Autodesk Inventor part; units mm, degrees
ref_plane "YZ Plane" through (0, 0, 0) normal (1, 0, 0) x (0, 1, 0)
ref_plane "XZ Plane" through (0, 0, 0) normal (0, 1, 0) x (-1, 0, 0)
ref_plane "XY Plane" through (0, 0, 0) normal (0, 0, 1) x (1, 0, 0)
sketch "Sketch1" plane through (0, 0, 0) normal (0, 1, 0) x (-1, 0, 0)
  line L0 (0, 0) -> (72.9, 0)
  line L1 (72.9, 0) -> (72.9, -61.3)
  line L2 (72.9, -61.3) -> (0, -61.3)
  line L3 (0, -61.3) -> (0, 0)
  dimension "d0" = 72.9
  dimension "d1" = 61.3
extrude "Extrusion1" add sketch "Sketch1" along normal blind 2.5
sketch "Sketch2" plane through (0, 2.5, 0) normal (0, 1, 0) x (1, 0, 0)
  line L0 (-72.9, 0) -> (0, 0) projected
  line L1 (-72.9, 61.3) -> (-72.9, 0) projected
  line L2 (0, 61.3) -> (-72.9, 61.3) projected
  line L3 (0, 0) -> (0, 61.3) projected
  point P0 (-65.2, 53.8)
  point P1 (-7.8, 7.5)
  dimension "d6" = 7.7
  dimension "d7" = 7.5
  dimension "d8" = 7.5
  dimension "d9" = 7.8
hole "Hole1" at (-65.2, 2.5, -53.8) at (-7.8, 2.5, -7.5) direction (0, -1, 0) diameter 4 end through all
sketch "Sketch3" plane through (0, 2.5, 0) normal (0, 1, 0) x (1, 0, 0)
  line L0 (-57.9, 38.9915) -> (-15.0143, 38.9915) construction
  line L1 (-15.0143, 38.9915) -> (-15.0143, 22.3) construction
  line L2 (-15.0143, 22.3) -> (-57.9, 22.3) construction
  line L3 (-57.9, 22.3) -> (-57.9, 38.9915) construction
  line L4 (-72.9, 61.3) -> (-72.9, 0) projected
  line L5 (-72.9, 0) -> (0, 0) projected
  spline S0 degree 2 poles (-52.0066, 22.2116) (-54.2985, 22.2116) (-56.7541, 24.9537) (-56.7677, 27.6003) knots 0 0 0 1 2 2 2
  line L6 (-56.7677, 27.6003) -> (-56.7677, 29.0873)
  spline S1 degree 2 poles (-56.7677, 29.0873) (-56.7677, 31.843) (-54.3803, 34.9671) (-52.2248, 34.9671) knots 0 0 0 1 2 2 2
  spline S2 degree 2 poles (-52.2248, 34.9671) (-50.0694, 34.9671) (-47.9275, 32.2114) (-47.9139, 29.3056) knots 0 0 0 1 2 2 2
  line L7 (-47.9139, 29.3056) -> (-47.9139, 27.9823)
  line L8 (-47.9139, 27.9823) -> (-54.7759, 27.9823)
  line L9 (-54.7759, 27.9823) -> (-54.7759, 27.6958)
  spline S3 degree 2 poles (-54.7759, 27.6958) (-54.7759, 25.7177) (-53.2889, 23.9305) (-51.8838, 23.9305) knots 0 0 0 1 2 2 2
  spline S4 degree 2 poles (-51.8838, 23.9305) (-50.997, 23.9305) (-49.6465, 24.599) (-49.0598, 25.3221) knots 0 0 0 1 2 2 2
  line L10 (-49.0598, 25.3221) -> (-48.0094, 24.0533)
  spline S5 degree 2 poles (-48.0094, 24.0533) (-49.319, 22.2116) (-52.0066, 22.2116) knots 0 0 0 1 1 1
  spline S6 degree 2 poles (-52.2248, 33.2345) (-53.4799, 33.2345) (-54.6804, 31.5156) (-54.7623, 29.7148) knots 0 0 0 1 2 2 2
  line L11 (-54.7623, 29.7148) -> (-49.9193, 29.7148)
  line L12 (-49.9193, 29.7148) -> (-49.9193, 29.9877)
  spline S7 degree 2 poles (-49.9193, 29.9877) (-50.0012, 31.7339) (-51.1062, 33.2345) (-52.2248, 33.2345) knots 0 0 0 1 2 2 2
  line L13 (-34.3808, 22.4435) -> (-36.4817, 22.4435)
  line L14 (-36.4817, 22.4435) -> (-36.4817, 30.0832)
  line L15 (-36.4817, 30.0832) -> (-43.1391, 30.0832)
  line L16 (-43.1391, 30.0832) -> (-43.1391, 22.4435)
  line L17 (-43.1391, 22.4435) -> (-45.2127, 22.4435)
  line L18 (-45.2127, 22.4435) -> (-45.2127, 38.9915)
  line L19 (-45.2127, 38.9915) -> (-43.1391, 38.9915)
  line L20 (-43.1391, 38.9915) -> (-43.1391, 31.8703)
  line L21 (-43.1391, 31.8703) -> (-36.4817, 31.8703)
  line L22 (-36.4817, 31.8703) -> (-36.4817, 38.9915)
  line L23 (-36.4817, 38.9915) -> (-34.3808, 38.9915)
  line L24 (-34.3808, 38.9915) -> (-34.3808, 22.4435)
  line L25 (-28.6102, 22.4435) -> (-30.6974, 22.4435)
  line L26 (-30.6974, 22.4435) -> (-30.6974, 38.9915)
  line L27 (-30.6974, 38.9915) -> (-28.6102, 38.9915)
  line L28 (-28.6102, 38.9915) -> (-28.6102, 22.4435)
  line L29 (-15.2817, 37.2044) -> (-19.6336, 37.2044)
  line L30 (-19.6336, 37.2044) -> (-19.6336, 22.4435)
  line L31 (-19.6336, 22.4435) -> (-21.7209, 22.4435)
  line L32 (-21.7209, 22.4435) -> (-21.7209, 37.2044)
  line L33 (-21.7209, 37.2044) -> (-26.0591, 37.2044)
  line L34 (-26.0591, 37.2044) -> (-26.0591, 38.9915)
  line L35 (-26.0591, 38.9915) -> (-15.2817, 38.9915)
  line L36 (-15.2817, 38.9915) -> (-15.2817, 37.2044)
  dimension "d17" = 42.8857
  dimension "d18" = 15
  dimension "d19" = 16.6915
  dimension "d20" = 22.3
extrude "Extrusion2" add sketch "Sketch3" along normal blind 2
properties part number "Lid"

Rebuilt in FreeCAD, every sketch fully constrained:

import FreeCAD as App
import Part
import Sketcher


def add_polygon(sketch, points):
    """Adds a closed chain of lines whose ends are joined by coincident constraints."""
    first, n = sketch.GeometryCount, len(points)
    for a, b in zip(points, points[1:] + points[:1]):
        sketch.addGeometry(Part.LineSegment(App.Vector(*a, 0), App.Vector(*b, 0)), False)
    for i in range(n):
        sketch.addConstraint(Sketcher.Constraint("Coincident", first + i, 2, first + (i + 1) % n, 1))

doc = App.newDocument("Part")
params = doc.addObject("Spreadsheet::Sheet", "Params")
for row, (alias, value) in enumerate([
    ("sketch1_width", "72.9 mm"),
    ("sketch1_height", "61.3 mm"),
    ("pad1_length", "2.5 mm"),
    ("sketch2_diameter", "4 mm"),
    ("hole_diameter", "4 mm"),
    ("pad2_length", "2 mm"),
], start=1):
    params.set(f"A{row}", alias)
    params.set(f"B{row}", "=" + value)
    params.setAlias(f"B{row}", alias)

body = doc.addObject("PartDesign::Body", "Body")

# Sketch on XZ plane
sketch1 = body.newObject("Sketcher::SketchObject", "Sketch")
sketch1.AttachmentSupport = (doc.getObject("XZ_Plane"), [""])
sketch1.MapMode = "FlatFace"
add_polygon(sketch1, [(-73, 0), (0, 0), (0, -61), (-73, -61)])  # lines 0-3
sketch1.addConstraint([
    Sketcher.Constraint("Horizontal", 0),
    Sketcher.Constraint("Vertical", 1),
    Sketcher.Constraint("Horizontal", 2),
    Sketcher.Constraint("Vertical", 3),
    Sketcher.Constraint("Coincident", 0, 2, -1, 1),
    Sketcher.Constraint("DistanceX", 0, 1, 0, 2, 72.9),
    Sketcher.Constraint("DistanceY", 1, 2, 1, 1, 61.3),
])
sketch1.setExpression("Constraints[9]", "Params.sketch1_width")
sketch1.setExpression("Constraints[10]", "Params.sketch1_height")
pad1 = body.newObject("PartDesign::Pad", "Pad")
pad1.Profile = sketch1
pad1.setExpression("Length", "Params.pad1_length")
pad1.Reversed = True

# Sketch on XZ plane
sketch2 = body.newObject("Sketcher::SketchObject", "Sketch001")
sketch2.AttachmentSupport = (doc.getObject("XZ_Plane"), [""])
sketch2.MapMode = "FlatFace"
sketch2.AttachmentOffset = App.Placement(App.Vector(0, 0, -2.5), App.Rotation())
sketch2.addGeometry([
    Part.Circle(App.Vector(-65.2, -53.8, 0), App.Vector(0, 0, 1), 2),
    Part.Circle(App.Vector(-7.8, -7.5, 0), App.Vector(0, 0, 1), 2),
], False)
sketch2.addConstraint([
    Sketcher.Constraint("Equal", 0, 1),
    Sketcher.Constraint("Diameter", 0, 4.0),
    Sketcher.Constraint("DistanceX", 0, 3, -1, 1, 65.2),
    Sketcher.Constraint("DistanceY", 0, 3, -1, 1, 53.8),
    Sketcher.Constraint("DistanceX", 1, 3, -1, 1, 7.8),
    Sketcher.Constraint("DistanceY", 1, 3, -1, 1, 7.5),
])
sketch2.setExpression("Constraints[1]", "Params.sketch2_diameter")
doc.recompute()
hole = body.newObject("PartDesign::Hole", "Hole")
hole.Profile = sketch2
hole.ThreadType = "None"
hole.setExpression("Diameter", "Params.hole_diameter")
hole.DepthType = "ThroughAll"
hole.Reversed = True

# Sketch on XZ plane
sketch3 = body.newObject("Sketcher::SketchObject", "Sketch002")
sketch3.AttachmentSupport = (doc.getObject("XZ_Plane"), [""])
sketch3.MapMode = "FlatFace"
sketch3.AttachmentOffset = App.Placement(App.Vector(0, 0, -2.5), App.Rotation())
sketch3.addGeometry(Part.BSplineCurve([App.Vector(-52.0066, -22.2116, 0), App.Vector(-54.2985, -22.2116, 0), App.Vector(-56.7541, -24.9537, 0), App.Vector(-56.7677, -27.6003, 0)], [3, 1, 3], [0, 1, 2], False, 2, [1, 1, 1, 1], False), False)  # 0
sketch3.addGeometry(Part.BSplineCurve([App.Vector(-48.0094, -24.0533, 0), App.Vector(-49.319, -22.2116, 0), App.Vector(-52.0066, -22.2116, 0)], [3, 3], [0, 1], False, 2, [1, 1, 1], False), False)  # 1
sketch3.addGeometry(Part.LineSegment(App.Vector(-48.0094, -24.0533, 0), App.Vector(-49.0598, -25.3221, 0)), False)  # 2
sketch3.addGeometry(Part.BSplineCurve([App.Vector(-51.8838, -23.9305, 0), App.Vector(-50.997, -23.9305, 0), App.Vector(-49.6465, -24.599, 0), App.Vector(-49.0598, -25.3221, 0)], [3, 1, 3], [0, 1, 2], False, 2, [1, 1, 1, 1], False), False)  # 3
sketch3.addGeometry(Part.BSplineCurve([App.Vector(-54.7759, -27.6958, 0), App.Vector(-54.7759, -25.7177, 0), App.Vector(-53.2889, -23.9305, 0), App.Vector(-51.8838, -23.9305, 0)], [3, 1, 3], [0, 1, 2], False, 2, [1, 1, 1, 1], False), False)  # 4
sketch3.addGeometry(Part.LineSegment(App.Vector(-54.7759, -27.6958, 0), App.Vector(-54.7759, -27.9823, 0)), False)  # 5
sketch3.addGeometry(Part.LineSegment(App.Vector(-54.7759, -27.9823, 0), App.Vector(-47.9139, -27.9823, 0)), False)  # 6
sketch3.addGeometry(Part.LineSegment(App.Vector(-47.9139, -27.9823, 0), App.Vector(-47.9139, -29.3056, 0)), False)  # 7
sketch3.addGeometry(Part.BSplineCurve([App.Vector(-52.2248, -34.9671, 0), App.Vector(-50.0694, -34.9671, 0), App.Vector(-47.9275, -32.2114, 0), App.Vector(-47.9139, -29.3056, 0)], [3, 1, 3], [0, 1, 2], False, 2, [1, 1, 1, 1], False), False)  # 8
sketch3.addGeometry(Part.BSplineCurve([App.Vector(-56.7677, -29.0873, 0), App.Vector(-56.7677, -31.843, 0), App.Vector(-54.3803, -34.9671, 0), App.Vector(-52.2248, -34.9671, 0)], [3, 1, 3], [0, 1, 2], False, 2, [1, 1, 1, 1], False), False)  # 9
sketch3.addGeometry(Part.LineSegment(App.Vector(-56.7677, -29.0873, 0), App.Vector(-56.7677, -27.6003, 0)), False)  # 10
sketch3.addGeometry(Part.BSplineCurve([App.Vector(-52.2248, -33.2345, 0), App.Vector(-53.4799, -33.2345, 0), App.Vector(-54.6804, -31.5156, 0), App.Vector(-54.7623, -29.7148, 0)], [3, 1, 3], [0, 1, 2], False, 2, [1, 1, 1, 1], False), False)  # 11
sketch3.addGeometry(Part.BSplineCurve([App.Vector(-49.9193, -29.9877, 0), App.Vector(-50.0012, -31.7339, 0), App.Vector(-51.1062, -33.2345, 0), App.Vector(-52.2248, -33.2345, 0)], [3, 1, 3], [0, 1, 2], False, 2, [1, 1, 1, 1], False), False)  # 12
sketch3.addGeometry(Part.LineSegment(App.Vector(-49.9193, -29.9877, 0), App.Vector(-49.9193, -29.7148, 0)), False)  # 13
sketch3.addGeometry(Part.LineSegment(App.Vector(-49.9193, -29.7148, 0), App.Vector(-54.7623, -29.7148, 0)), False)  # 14
add_polygon(sketch3, [(-36.4817, -22.4435), (-34.3808, -22.4435), (-34.3808, -38.9915), (-36.4817, -38.9915), (-36.4817, -31.8703), (-43.1391, -31.8703), (-43.1391, -38.9915), (-45.2127, -38.9915), (-45.2127, -22.4435), (-43.1391, -22.4435), (-43.1391, -30.0832), (-36.4817, -30.0832)])  # lines 15-26
add_polygon(sketch3, [(-30.6974, -22.4435), (-28.6102, -22.4435), (-28.6102, -38.9915), (-30.6974, -38.9915)])  # lines 27-30
add_polygon(sketch3, [(-19.6336, -37.2044), (-15.2817, -37.2044), (-15.2817, -38.9915), (-26.0591, -38.9915), (-26.0591, -37.2044), (-21.7209, -37.2044), (-21.7209, -22.4435), (-19.6336, -22.4435)])  # lines 31-38
sketch3.addConstraint([
    Sketcher.Constraint("Block", 0),
    Sketcher.Constraint("Block", 1),
    Sketcher.Constraint("Block", 3),
    Sketcher.Constraint("Block", 4),
    Sketcher.Constraint("Block", 8),
    Sketcher.Constraint("Block", 9),
    Sketcher.Constraint("Block", 11),
    Sketcher.Constraint("Block", 12),
    Sketcher.Constraint("Coincident", 1, 1, 2, 1),
    Sketcher.Constraint("Coincident", 2, 2, 3, 2),
    Sketcher.Constraint("Coincident", 4, 1, 5, 1),
    Sketcher.Constraint("Coincident", 5, 2, 6, 1),
    Sketcher.Constraint("Coincident", 6, 2, 7, 1),
    Sketcher.Constraint("Coincident", 7, 2, 8, 2),
    Sketcher.Constraint("Coincident", 9, 1, 10, 1),
    Sketcher.Constraint("Coincident", 10, 2, 0, 2),
    Sketcher.Constraint("Coincident", 12, 1, 13, 1),
    Sketcher.Constraint("Coincident", 13, 2, 14, 1),
    Sketcher.Constraint("Coincident", 14, 2, 11, 2),
    Sketcher.Constraint("Vertical", 5),
    Sketcher.Constraint("Horizontal", 6),
    Sketcher.Constraint("Vertical", 7),
    Sketcher.Constraint("Vertical", 13),
    Sketcher.Constraint("Horizontal", 14),
    Sketcher.Constraint("Horizontal", 15),
    Sketcher.Constraint("Vertical", 16),
    Sketcher.Constraint("Horizontal", 17),
    Sketcher.Constraint("Vertical", 18),
    Sketcher.Constraint("Horizontal", 19),
    Sketcher.Constraint("Vertical", 20),
    Sketcher.Constraint("Horizontal", 21),
    Sketcher.Constraint("Vertical", 22),
    Sketcher.Constraint("Horizontal", 23),
    Sketcher.Constraint("Vertical", 24),
    Sketcher.Constraint("Horizontal", 25),
    Sketcher.Constraint("Vertical", 26),
    Sketcher.Constraint("Horizontal", 27),
    Sketcher.Constraint("Vertical", 28),
    Sketcher.Constraint("Horizontal", 29),
    Sketcher.Constraint("Vertical", 30),
    Sketcher.Constraint("Horizontal", 31),
    Sketcher.Constraint("Vertical", 32),
    Sketcher.Constraint("Horizontal", 33),
    Sketcher.Constraint("Vertical", 34),
    Sketcher.Constraint("Horizontal", 35),
    Sketcher.Constraint("Vertical", 36),
    Sketcher.Constraint("Horizontal", 37),
    Sketcher.Constraint("Vertical", 38),
    Sketcher.Constraint("Horizontal", 17, 2, 20, 2),
    Sketcher.Constraint("Horizontal", 15, 2, 22, 2),
    Sketcher.Constraint("Horizontal", 26, 2, 27, 2),
    Sketcher.Constraint("Horizontal", 21, 2, 28, 2),
    Sketcher.Constraint("Horizontal", 29, 2, 32, 2),
    Sketcher.Constraint("Horizontal", 31, 2, 34, 2),
    Sketcher.Constraint("Horizontal", 30, 2, 36, 2),
    Sketcher.Constraint("Vertical", 20, 2, 23, 2),
    Sketcher.Constraint("Vertical", 18, 2, 25, 2),
    Sketcher.Constraint("Equal", 29, 37),
    Sketcher.Constraint("DistanceX", 17, 2, 31, 2, 21.2),
    Sketcher.Constraint("DistanceX", 15, 1, 15, 2, 2.101),
    Sketcher.Constraint("DistanceX", 31, 1, 31, 2, 4.352),
    Sketcher.Constraint("DistanceY", 16, 2, 16, 1, 16.548),
    Sketcher.Constraint("DistanceY", 32, 2, 32, 1, 1.787),
    Sketcher.Constraint("DistanceX", 15, 2, 36, 2, 12.66),
    Sketcher.Constraint("DistanceX", 19, 2, 19, 1, 6.6574),
    Sketcher.Constraint("DistanceX", 21, 2, 21, 1, 2.0736),
    Sketcher.Constraint("DistanceX", 33, 2, 33, 1, 10.7774),
    Sketcher.Constraint("DistanceY", 5, 2, 5, 1, 0.2865),
    Sketcher.Constraint("DistanceY", 18, 1, 18, 2, 7.1212),
    Sketcher.Constraint("DistanceY", 24, 2, 24, 1, 7.6397),
    Sketcher.Constraint("DistanceX", 19, 2, -1, 1, 43.139),
    Sketcher.Constraint("DistanceY", 7, 2, 15, 2, 6.862),
    Sketcher.Constraint("DistanceX", 23, 2, 27, 2, 14.529),
])
pad2 = body.newObject("PartDesign::Pad", "Pad001")
pad2.Profile = sketch3
pad2.setExpression("Length", "Params.pad2_length")
pad2.Reversed = True

doc.recompute()
